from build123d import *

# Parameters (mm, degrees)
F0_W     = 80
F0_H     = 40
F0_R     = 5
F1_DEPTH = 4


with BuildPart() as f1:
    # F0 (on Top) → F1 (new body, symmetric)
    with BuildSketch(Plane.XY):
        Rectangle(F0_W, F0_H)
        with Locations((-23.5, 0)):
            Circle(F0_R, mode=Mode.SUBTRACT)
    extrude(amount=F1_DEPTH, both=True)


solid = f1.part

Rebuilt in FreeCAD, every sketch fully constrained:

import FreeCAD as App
import Part
import Sketcher

doc = App.newDocument("Part")
body = doc.addObject("PartDesign::Body", "Body")

sketch1 = body.newObject("Sketcher::SketchObject", "Sketch")
sketch1.AttachmentSupport = (doc.getObject("XY_Plane"), [""])
sketch1.MapMode = "FlatFace"
sketch1.addGeometry([
    Part.LineSegment(App.Vector(-40, 20, 0), App.Vector(-40, -20, 0)),
    Part.LineSegment(App.Vector(-40, -20, 0), App.Vector(40, -20, 0)),
    Part.LineSegment(App.Vector(40, -20, 0), App.Vector(40, 20, 0)),
    Part.LineSegment(App.Vector(40, 20, 0), App.Vector(-40, 20, 0)),
    Part.Circle(App.Vector(-24, 0, 0), App.Vector(0, 0, 1), 5),
], False)
sketch1.addConstraint([
    Sketcher.Constraint("Coincident", 0, 2, 1, 1),
    Sketcher.Constraint("Coincident", 1, 2, 2, 1),
    Sketcher.Constraint("Coincident", 2, 2, 3, 1),
    Sketcher.Constraint("Coincident", 3, 2, 0, 1),
    Sketcher.Constraint("Vertical", 0),
    Sketcher.Constraint("Horizontal", 1),
    Sketcher.Constraint("Vertical", 2),
    Sketcher.Constraint("Horizontal", 3),
    Sketcher.Constraint("Symmetric", 0, 2, 2, 2, -1, 1),
    Sketcher.Constraint("PointOnObject", 4, 3, -1),
    Sketcher.Constraint("Diameter", 4, 10.0),
    Sketcher.Constraint("DistanceX", 1, 1, 1, 2, 80.0),
    Sketcher.Constraint("DistanceY", 0, 2, 0, 1, 40.0),
    Sketcher.Constraint("DistanceX", 4, 3, -1, 1, 23.5),
])
pad1 = body.newObject("PartDesign::Pad", "Pad")
pad1.Profile = sketch1
pad1.Length = 8
pad1.Midplane = True

doc.recompute()
